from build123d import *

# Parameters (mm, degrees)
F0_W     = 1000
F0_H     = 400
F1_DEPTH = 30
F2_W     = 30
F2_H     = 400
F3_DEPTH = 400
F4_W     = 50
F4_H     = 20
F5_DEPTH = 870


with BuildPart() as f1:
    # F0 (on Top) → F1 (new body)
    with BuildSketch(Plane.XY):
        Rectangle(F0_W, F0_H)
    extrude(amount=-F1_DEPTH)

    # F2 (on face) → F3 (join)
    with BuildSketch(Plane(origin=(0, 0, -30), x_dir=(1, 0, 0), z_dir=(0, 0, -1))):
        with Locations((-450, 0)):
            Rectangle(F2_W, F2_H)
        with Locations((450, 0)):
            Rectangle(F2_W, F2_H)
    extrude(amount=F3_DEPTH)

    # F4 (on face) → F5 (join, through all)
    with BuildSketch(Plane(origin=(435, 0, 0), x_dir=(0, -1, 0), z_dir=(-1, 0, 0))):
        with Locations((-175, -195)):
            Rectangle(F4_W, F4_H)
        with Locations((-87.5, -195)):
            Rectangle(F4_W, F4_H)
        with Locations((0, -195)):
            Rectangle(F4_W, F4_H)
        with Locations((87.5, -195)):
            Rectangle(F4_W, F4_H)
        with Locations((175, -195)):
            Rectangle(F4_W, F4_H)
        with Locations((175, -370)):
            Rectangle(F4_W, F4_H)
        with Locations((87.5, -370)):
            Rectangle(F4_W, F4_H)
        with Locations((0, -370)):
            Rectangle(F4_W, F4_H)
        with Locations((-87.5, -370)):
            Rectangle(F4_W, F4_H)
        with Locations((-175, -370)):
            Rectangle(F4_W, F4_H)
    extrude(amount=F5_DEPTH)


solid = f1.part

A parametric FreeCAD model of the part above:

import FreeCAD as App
import Part
import Sketcher
from FreeCAD import Vector
Q = App.Units.Quantity

doc = App.newDocument("Part")
body = doc.addObject("PartDesign::Body", "Body")

sketch1 = body.newObject("Sketcher::SketchObject", "Sketch")
sketch1.AttachmentSupport = (doc.getObject("XY_Plane"), [""])
sketch1.MapMode = "FlatFace"
sketch1.addGeometry([
    Part.LineSegment(Vector(-500, 200, 0), Vector(-500, -200, 0)),
    Part.LineSegment(Vector(-500, -200, 0), Vector(500, -200, 0)),
    Part.LineSegment(Vector(500, -200, 0), Vector(500, 200, 0)),
    Part.LineSegment(Vector(500, 200, 0), Vector(-500, 200, 0)),
], False)
sketch1.addConstraint([
    Sketcher.Constraint("Coincident", 0, 2, 1, 1),
    Sketcher.Constraint("Coincident", 1, 2, 2, 1),
    Sketcher.Constraint("Coincident", 2, 2, 3, 1),
    Sketcher.Constraint("Coincident", 3, 2, 0, 1),
    Sketcher.Constraint("Vertical", 0),
    Sketcher.Constraint("Horizontal", 1),
    Sketcher.Constraint("Vertical", 2),
    Sketcher.Constraint("Horizontal", 3),
    Sketcher.Constraint("Symmetric", 0, 2, 2, 2, -1, 1),
    Sketcher.Constraint("DistanceX", 1, 1, 1, 2, Q("1000 mm")),
    Sketcher.Constraint("DistanceY", 0, 2, 0, 1, Q("400 mm")),
])
pad1 = body.newObject("PartDesign::Pad", "Pad")
pad1.Profile = sketch1
pad1.Length = 30
pad1.Reversed = True

sketch2 = body.newObject("Sketcher::SketchObject", "Sketch001")
sketch2.AttachmentSupport = (doc.getObject("XY_Plane"), [""])
sketch2.MapMode = "FlatFace"
sketch2.AttachmentOffset = App.Placement(Vector(0, 0, -30), App.Rotation())
sketch2.addGeometry([
    Part.LineSegment(Vector(-465, -200, 0), Vector(-465, 200, 0)),
    Part.LineSegment(Vector(-465, 200, 0), Vector(-435, 200, 0)),
    Part.LineSegment(Vector(-435, 200, 0), Vector(-435, -200, 0)),
    Part.LineSegment(Vector(-435, -200, 0), Vector(-465, -200, 0)),
    Part.LineSegment(Vector(435, -200, 0), Vector(435, 200, 0)),
    Part.LineSegment(Vector(435, 200, 0), Vector(465, 200, 0)),
    Part.LineSegment(Vector(465, 200, 0), Vector(465, -200, 0)),
    Part.LineSegment(Vector(465, -200, 0), Vector(435, -200, 0)),
], False)
sketch2.addConstraint([
    Sketcher.Constraint("Coincident", 0, 2, 1, 1),
    Sketcher.Constraint("Coincident", 1, 2, 2, 1),
    Sketcher.Constraint("Coincident", 2, 2, 3, 1),
    Sketcher.Constraint("Coincident", 3, 2, 0, 1),
    Sketcher.Constraint("Coincident", 4, 2, 5, 1),
    Sketcher.Constraint("Coincident", 5, 2, 6, 1),
    Sketcher.Constraint("Coincident", 6, 2, 7, 1),
    Sketcher.Constraint("Coincident", 7, 2, 4, 1),
    Sketcher.Constraint("Vertical", 0),
    Sketcher.Constraint("Horizontal", 1),
    Sketcher.Constraint("Vertical", 2),
    Sketcher.Constraint("Horizontal", 3),
    Sketcher.Constraint("Vertical", 4),
    Sketcher.Constraint("Horizontal", 5),
    Sketcher.Constraint("Vertical", 6),
    Sketcher.Constraint("Horizontal", 7),
    Sketcher.Constraint("Symmetric", 2, 2, 4, 2, -1, 1),
    Sketcher.Constraint("Symmetric", 0, 2, 6, 2, -1, 1),
    Sketcher.Constraint("Horizontal", 1, 2, 4, 2),
    Sketcher.Constraint("DistanceX", 1, 1, 1, 2, Q("30 mm")),
    Sketcher.Constraint("DistanceY", 0, 1, 0, 2, Q("400 mm")),
    Sketcher.Constraint("DistanceX", 0, 2, -1, 1, Q("465 mm")),
])
pad2 = body.newObject("PartDesign::Pad", "Pad001")
pad2.Profile = sketch2
pad2.Length = 400
pad2.Reversed = True

sketch3 = body.newObject("Sketcher::SketchObject", "Sketch002")
sketch3.AttachmentSupport = (doc.getObject("YZ_Plane"), [""])
sketch3.MapMode = "FlatFace"
sketch3.AttachmentOffset = App.Placement(Vector(0, 0, 435), App.Rotation())
sketch3.addGeometry([
    Part.LineSegment(Vector(200, -185, 0), Vector(200, -205, 0)),
    Part.LineSegment(Vector(200, -205, 0), Vector(150, -205, 0)),
    Part.LineSegment(Vector(150, -205, 0), Vector(150, -185, 0)),
    Part.LineSegment(Vector(150, -185, 0), Vector(200, -185, 0)),
    Part.LineSegment(Vector(112, -185, 0), Vector(112, -205, 0)),
    Part.LineSegment(Vector(112, -205, 0), Vector(62, -205, 0)),
    Part.LineSegment(Vector(62, -205, 0), Vector(62, -185, 0)),
    Part.LineSegment(Vector(62, -185, 0), Vector(112, -185, 0)),
    Part.LineSegment(Vector(25, -185, 0), Vector(25, -205, 0)),
    Part.LineSegment(Vector(25, -205, 0), Vector(-25, -205, 0)),
    Part.LineSegment(Vector(-25, -205, 0), Vector(-25, -185, 0)),
    Part.LineSegment(Vector(-25, -185, 0), Vector(25, -185, 0)),
    Part.LineSegment(Vector(-62, -185, 0), Vector(-62, -205, 0)),
    Part.LineSegment(Vector(-62, -205, 0), Vector(-112, -205, 0)),
    Part.LineSegment(Vector(-112, -205, 0), Vector(-112, -185, 0)),
    Part.LineSegment(Vector(-112, -185, 0), Vector(-62, -185, 0)),
    Part.LineSegment(Vector(-150, -185, 0), Vector(-150, -205, 0)),
    Part.LineSegment(Vector(-150, -205, 0), Vector(-200, -205, 0)),
    Part.LineSegment(Vector(-200, -205, 0), Vector(-200, -185, 0)),
    Part.LineSegment(Vector(-200, -185, 0), Vector(-150, -185, 0)),
    Part.LineSegment(Vector(-150, -360, 0), Vector(-150, -380, 0)),
    Part.LineSegment(Vector(-150, -380, 0), Vector(-200, -380, 0)),
    Part.LineSegment(Vector(-200, -380, 0), Vector(-200, -360, 0)),
    Part.LineSegment(Vector(-200, -360, 0), Vector(-150, -360, 0)),
    Part.LineSegment(Vector(-62, -360, 0), Vector(-62, -380, 0)),
    Part.LineSegment(Vector(-62, -380, 0), Vector(-112, -380, 0)),
    Part.LineSegment(Vector(-112, -380, 0), Vector(-112, -360, 0)),
    Part.LineSegment(Vector(-112, -360, 0), Vector(-62, -360, 0)),
    Part.LineSegment(Vector(25, -360, 0), Vector(25, -380, 0)),
    Part.LineSegment(Vector(25, -380, 0), Vector(-25, -380, 0)),
    Part.LineSegment(Vector(-25, -380, 0), Vector(-25, -360, 0)),
    Part.LineSegment(Vector(-25, -360, 0), Vector(25, -360, 0)),
    Part.LineSegment(Vector(112, -360, 0), Vector(112, -380, 0)),
    Part.LineSegment(Vector(112, -380, 0), Vector(62, -380, 0)),
    Part.LineSegment(Vector(62, -380, 0), Vector(62, -360, 0)),
    Part.LineSegment(Vector(62, -360, 0), Vector(112, -360, 0)),
    Part.LineSegment(Vector(200, -360, 0), Vector(200, -380, 0)),
    Part.LineSegment(Vector(200, -380, 0), Vector(150, -380, 0)),
    Part.LineSegment(Vector(150, -380, 0), Vector(150, -360, 0)),
    Part.LineSegment(Vector(150, -360, 0), Vector(200, -360, 0)),
], False)
sketch3.addConstraint([
    Sketcher.Constraint("Coincident", 0, 2, 1, 1),
    Sketcher.Constraint("Coincident", 1, 2, 2, 1),
    Sketcher.Constraint("Coincident", 2, 2, 3, 1),
    Sketcher.Constraint("Coincident", 3, 2, 0, 1),
    Sketcher.Constraint("Coincident", 4, 2, 5, 1),
    Sketcher.Constraint("Coincident", 5, 2, 6, 1),
    Sketcher.Constraint("Coincident", 6, 2, 7, 1),
    Sketcher.Constraint("Coincident", 7, 2, 4, 1),
    Sketcher.Constraint("Coincident", 8, 2, 9, 1),
    Sketcher.Constraint("Coincident", 9, 2, 10, 1),
    Sketcher.Constraint("Coincident", 10, 2, 11, 1),
    Sketcher.Constraint("Coincident", 11, 2, 8, 1),
    Sketcher.Constraint("Coincident", 12, 2, 13, 1),
    Sketcher.Constraint("Coincident", 13, 2, 14, 1),
    Sketcher.Constraint("Coincident", 14, 2, 15, 1),
    Sketcher.Constraint("Coincident", 15, 2, 12, 1),
    Sketcher.Constraint("Coincident", 16, 2, 17, 1),
    Sketcher.Constraint("Coincident", 17, 2, 18, 1),
    Sketcher.Constraint("Coincident", 18, 2, 19, 1),
    Sketcher.Constraint("Coincident", 19, 2, 16, 1),
    Sketcher.Constraint("Coincident", 20, 2, 21, 1),
    Sketcher.Constraint("Coincident", 21, 2, 22, 1),
    Sketcher.Constraint("Coincident", 22, 2, 23, 1),
    Sketcher.Constraint("Coincident", 23, 2, 20, 1),
    Sketcher.Constraint("Coincident", 24, 2, 25, 1),
    Sketcher.Constraint("Coincident", 25, 2, 26, 1),
    Sketcher.Constraint("Coincident", 26, 2, 27, 1),
    Sketcher.Constraint("Coincident", 27, 2, 24, 1),
    Sketcher.Constraint("Coincident", 28, 2, 29, 1),
    Sketcher.Constraint("Coincident", 29, 2, 30, 1),
    Sketcher.Constraint("Coincident", 30, 2, 31, 1),
    Sketcher.Constraint("Coincident", 31, 2, 28, 1),
    Sketcher.Constraint("Coincident", 32, 2, 33, 1),
    Sketcher.Constraint("Coincident", 33, 2, 34, 1),
    Sketcher.Constraint("Coincident", 34, 2, 35, 1),
    Sketcher.Constraint("Coincident", 35, 2, 32, 1),
    Sketcher.Constraint("Coincident", 36, 2, 37, 1),
    Sketcher.Constraint("Coincident", 37, 2, 38, 1),
    Sketcher.Constraint("Coincident", 38, 2, 39, 1),
    Sketcher.Constraint("Coincident", 39, 2, 36, 1),
    Sketcher.Constraint("Vertical", 0),
    Sketcher.Constraint("Horizontal", 1),
    Sketcher.Constraint("Vertical", 2),
    Sketcher.Constraint("Horizontal", 3),
    Sketcher.Constraint("Vertical", 4),
    Sketcher.Constraint("Horizontal", 5),
    Sketcher.Constraint("Vertical", 6),
    Sketcher.Constraint("Horizontal", 7),
    Sketcher.Constraint("Vertical", 8),
    Sketcher.Constraint("Horizontal", 9),
    Sketcher.Constraint("Vertical", 10),
    Sketcher.Constraint("Horizontal", 11),
    Sketcher.Constraint("Vertical", 12),
    Sketcher.Constraint("Horizontal", 13),
    Sketcher.Constraint("Vertical", 14),
    Sketcher.Constraint("Horizontal", 15),
    Sketcher.Constraint("Vertical", 16),
    Sketcher.Constraint("Horizontal", 17),
    Sketcher.Constraint("Vertical", 18),
    Sketcher.Constraint("Horizontal", 19),
    Sketcher.Constraint("Vertical", 20),
    Sketcher.Constraint("Horizontal", 21),
    Sketcher.Constraint("Vertical", 22),
    Sketcher.Constraint("Horizontal", 23),
    Sketcher.Constraint("Vertical", 24),
    Sketcher.Constraint("Horizontal", 25),
    Sketcher.Constraint("Vertical", 26),
    Sketcher.Constraint("Horizontal", 27),
    Sketcher.Constraint("Vertical", 28),
    Sketcher.Constraint("Horizontal", 29),
    Sketcher.Constraint("Vertical", 30),
    Sketcher.Constraint("Horizontal", 31),
    Sketcher.Constraint("Vertical", 32),
    Sketcher.Constraint("Horizontal", 33),
    Sketcher.Constraint("Vertical", 34),
    Sketcher.Constraint("Horizontal", 35),
    Sketcher.Constraint("Vertical", 36),
    Sketcher.Constraint("Horizontal", 37),
    Sketcher.Constraint("Vertical", 38),
    Sketcher.Constraint("Horizontal", 39),
    Sketcher.Constraint("Symmetric", 5, 2, 12, 2, -2),
    Sketcher.Constraint("Symmetric", 7, 2, 14, 2, -2),
    Sketcher.Constraint("Symmetric", 1, 2, 16, 2, -2),
    Sketcher.Constraint("Symmetric", 3, 2, 18, 2, -2),
    Sketcher.Constraint("Symmetric", 25, 2, 32, 2, -2),
    Sketcher.Constraint("Symmetric", 27, 2, 34, 2, -2),
    Sketcher.Constraint("Symmetric", 21, 2, 36, 2, -2),
    Sketcher.Constraint("Symmetric", 23, 2, 38, 2, -2),
    Sketcher.Constraint("Horizontal", 1, 2, 4, 2),
    Sketcher.Constraint("Horizontal", 3, 2, 6, 2),
    Sketcher.Constraint("Horizontal", 5, 2, 8, 2),
    Sketcher.Constraint("Horizontal", 7, 2, 10, 2),
    Sketcher.Constraint("Horizontal", 21, 2, 24, 2),
    Sketcher.Constraint("Horizontal", 23, 2, 26, 2),
    Sketcher.Constraint("Horizontal", 25, 2, 28, 2),
    Sketcher.Constraint("Horizontal", 27, 2, 30, 2),
    Sketcher.Constraint("Vertical", 19, 2, 20, 2),
    Sketcher.Constraint("Vertical", 18, 2, 21, 2),
    Sketcher.Constraint("Vertical", 15, 2, 24, 2),
    Sketcher.Constraint("Vertical", 14, 2, 25, 2),
    Sketcher.Constraint("Vertical", 11, 2, 28, 2),
    Sketcher.Constraint("Vertical", 10, 2, 29, 2),
    Sketcher.Constraint("Equal", 3, 5),
    Sketcher.Constraint("Equal", 7, 9),
    Sketcher.Constraint("Equal", 18, 20),
    Sketcher.Constraint("DistanceX", 1, 2, 1, 1, Q("50 mm")),
    Sketcher.Constraint("DistanceY", 0, 2, 0, 1, Q("20 mm")),
    Sketcher.Constraint("DistanceX", -1, 1, 0, 2, Q("200 mm")),
    Sketcher.Constraint("DistanceY", 0, 2, -1, 1, Q("205 mm")),
    Sketcher.Constraint("DistanceX", -1, 1, 8, 2, Q("25 mm")),
    Sketcher.Constraint("DistanceY", 20, 2, -1, 1, Q("380 mm")),
    Sketcher.Constraint("DistanceX", 12, 2, 5, 2, Q("125 mm")),
])
pad3 = body.newObject("PartDesign::Pad", "Pad002")
pad3.Profile = sketch3
pad3.Type = "UpToLast"
pad3.Reversed = True

doc.recompute()
